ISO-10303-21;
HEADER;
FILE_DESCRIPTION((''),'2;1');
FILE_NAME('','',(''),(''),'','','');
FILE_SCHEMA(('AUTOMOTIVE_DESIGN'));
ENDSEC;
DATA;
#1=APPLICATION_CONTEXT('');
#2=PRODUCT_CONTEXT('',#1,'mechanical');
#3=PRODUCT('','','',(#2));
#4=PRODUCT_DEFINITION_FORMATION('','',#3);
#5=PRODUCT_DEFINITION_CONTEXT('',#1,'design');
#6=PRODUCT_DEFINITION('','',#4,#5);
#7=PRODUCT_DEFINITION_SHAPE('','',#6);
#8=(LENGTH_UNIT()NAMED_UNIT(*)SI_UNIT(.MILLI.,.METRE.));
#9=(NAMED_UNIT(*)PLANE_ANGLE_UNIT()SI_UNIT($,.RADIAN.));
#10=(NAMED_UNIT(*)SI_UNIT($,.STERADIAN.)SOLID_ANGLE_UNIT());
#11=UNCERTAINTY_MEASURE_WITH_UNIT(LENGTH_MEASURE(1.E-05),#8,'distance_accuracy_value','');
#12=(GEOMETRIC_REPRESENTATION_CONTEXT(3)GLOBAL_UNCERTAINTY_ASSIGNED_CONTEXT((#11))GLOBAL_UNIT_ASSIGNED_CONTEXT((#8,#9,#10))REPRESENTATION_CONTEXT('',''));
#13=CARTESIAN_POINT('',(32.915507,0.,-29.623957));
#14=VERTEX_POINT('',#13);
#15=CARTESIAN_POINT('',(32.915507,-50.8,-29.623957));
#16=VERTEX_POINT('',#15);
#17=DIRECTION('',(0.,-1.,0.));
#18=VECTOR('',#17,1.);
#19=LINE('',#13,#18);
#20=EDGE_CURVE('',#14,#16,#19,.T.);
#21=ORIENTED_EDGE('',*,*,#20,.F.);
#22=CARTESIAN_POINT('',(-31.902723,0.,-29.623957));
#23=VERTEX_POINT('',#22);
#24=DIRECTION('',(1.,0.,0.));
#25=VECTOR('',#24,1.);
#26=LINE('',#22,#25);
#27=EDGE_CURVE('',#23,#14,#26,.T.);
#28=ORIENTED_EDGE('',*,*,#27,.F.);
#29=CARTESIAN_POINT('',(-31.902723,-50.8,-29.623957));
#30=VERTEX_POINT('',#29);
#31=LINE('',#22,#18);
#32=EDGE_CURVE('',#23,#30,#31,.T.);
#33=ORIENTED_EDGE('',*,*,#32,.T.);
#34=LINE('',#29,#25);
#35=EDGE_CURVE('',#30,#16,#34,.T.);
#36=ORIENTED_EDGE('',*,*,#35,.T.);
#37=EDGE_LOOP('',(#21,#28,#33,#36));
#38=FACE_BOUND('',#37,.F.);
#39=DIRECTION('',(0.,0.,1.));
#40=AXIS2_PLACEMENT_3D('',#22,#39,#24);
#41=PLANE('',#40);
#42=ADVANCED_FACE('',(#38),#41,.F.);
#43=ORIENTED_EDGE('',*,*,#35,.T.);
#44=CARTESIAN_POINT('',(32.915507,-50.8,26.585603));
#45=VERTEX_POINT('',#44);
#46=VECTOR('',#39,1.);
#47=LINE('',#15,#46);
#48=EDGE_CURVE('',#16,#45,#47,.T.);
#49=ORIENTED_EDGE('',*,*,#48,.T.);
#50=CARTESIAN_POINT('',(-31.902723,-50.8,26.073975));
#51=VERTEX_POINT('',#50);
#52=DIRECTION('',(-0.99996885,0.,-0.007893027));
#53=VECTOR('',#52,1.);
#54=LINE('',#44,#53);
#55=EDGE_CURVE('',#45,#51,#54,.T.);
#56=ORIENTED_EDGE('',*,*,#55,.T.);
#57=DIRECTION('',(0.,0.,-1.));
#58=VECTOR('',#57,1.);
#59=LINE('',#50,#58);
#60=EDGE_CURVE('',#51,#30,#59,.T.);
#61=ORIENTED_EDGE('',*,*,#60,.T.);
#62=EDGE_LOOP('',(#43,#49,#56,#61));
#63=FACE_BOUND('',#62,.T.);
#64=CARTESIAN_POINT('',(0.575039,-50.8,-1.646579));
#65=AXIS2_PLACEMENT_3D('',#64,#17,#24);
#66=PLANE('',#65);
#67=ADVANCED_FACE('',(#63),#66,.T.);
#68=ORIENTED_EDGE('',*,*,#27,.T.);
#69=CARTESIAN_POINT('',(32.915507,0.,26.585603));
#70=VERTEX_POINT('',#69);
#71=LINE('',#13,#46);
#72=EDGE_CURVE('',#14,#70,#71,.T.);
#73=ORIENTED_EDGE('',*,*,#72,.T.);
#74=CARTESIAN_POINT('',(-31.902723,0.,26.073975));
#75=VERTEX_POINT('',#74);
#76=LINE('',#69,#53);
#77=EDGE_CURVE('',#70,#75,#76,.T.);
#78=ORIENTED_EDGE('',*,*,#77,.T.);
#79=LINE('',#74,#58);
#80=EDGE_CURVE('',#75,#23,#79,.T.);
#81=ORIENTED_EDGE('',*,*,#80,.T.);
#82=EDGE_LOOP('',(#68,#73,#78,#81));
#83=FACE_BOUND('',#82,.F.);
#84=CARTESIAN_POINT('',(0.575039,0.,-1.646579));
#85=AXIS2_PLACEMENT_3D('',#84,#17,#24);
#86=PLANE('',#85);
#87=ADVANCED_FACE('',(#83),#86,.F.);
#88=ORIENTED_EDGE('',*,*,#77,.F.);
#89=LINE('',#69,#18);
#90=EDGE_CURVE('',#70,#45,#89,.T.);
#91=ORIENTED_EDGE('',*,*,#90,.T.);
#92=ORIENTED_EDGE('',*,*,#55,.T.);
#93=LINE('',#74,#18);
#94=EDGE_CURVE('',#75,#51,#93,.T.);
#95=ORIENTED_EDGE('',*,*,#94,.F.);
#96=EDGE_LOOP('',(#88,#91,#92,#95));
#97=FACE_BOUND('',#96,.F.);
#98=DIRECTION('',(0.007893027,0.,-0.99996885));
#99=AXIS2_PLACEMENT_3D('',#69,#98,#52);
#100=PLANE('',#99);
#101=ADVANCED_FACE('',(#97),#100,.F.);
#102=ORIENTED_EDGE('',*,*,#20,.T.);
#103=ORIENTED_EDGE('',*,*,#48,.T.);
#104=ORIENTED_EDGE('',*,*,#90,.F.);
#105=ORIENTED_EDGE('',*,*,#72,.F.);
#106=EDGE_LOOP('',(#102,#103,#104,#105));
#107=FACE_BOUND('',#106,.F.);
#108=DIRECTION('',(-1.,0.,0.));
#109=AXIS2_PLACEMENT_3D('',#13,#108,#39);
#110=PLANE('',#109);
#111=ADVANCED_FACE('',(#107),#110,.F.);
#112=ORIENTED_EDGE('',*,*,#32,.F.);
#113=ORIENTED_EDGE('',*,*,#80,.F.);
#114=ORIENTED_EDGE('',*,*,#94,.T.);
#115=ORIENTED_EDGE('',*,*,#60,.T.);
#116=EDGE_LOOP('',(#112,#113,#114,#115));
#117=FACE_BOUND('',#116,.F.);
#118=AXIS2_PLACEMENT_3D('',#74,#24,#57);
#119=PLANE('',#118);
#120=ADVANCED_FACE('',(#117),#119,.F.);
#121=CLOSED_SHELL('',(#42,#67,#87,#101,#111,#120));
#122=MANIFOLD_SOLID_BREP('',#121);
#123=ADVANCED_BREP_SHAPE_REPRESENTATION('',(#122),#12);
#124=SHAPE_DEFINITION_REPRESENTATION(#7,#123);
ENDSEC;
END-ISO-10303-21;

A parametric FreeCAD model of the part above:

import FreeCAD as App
import Part
import Sketcher
Q = App.Units.Quantity


def add_polygon(sketch, points):
    """Adds a closed chain of lines whose ends are joined by coincident constraints."""
    first, n = sketch.GeometryCount, len(points)
    for a, b in zip(points, points[1:] + points[:1]):
        sketch.addGeometry(Part.LineSegment(App.Vector(*a, 0), App.Vector(*b, 0)), False)
    for i in range(n):
        sketch.addConstraint(Sketcher.Constraint("Coincident", first + i, 2, first + (i + 1) % n, 1))

doc = App.newDocument("Part")
body = doc.addObject("PartDesign::Body", "Body")

# Sketch on XZ plane
sketch1 = body.newObject("Sketcher::SketchObject", "Sketch")
sketch1.AttachmentSupport = (doc.getObject("XZ_Plane"), [""])
sketch1.MapMode = "FlatFace"
sketch1.addGeometry(Part.Circle(App.Vector(0, 0, 0), App.Vector(0, 0, 1), 9), False)
sketch1.addConstraint(Sketcher.Constraint("Coincident", 0, 3, -1, 1))
sketch1.addConstraint(Sketcher.Constraint("Diameter", 0, 17.135232))
pad1 = body.newObject("PartDesign::Pad", "Pad")
pad1.Profile = sketch1
pad1.Length = Q("1 in")

# Sketch on XZ plane
sketch2 = body.newObject("Sketcher::SketchObject", "Sketch001")
sketch2.AttachmentSupport = (doc.getObject("XZ_Plane"), [""])
sketch2.MapMode = "FlatFace"
add_polygon(sketch2, [(32.915507, 26.585603), (-31.902723, 26.073975), (-31.902723, -29.623957), (32.915507, -29.623957)])  # lines 0-3
sketch2.addConstraint(Sketcher.Constraint("Vertical", 1))
sketch2.addConstraint(Sketcher.Constraint("Horizontal", 2))
sketch2.addConstraint(Sketcher.Constraint("Vertical", 3))
sketch2.addConstraint(Sketcher.Constraint("DistanceX", 2, 1, 2, 2, 64.81823))
sketch2.addConstraint(Sketcher.Constraint("DistanceY", 3, 1, 3, 2, 56.20956))
sketch2.addConstraint(Sketcher.Constraint("Distance", 0, 64.820249))
sketch2.addConstraint(Sketcher.Constraint("DistanceX", 0, 2, -1, 1, 31.902723))
sketch2.addConstraint(Sketcher.Constraint("DistanceY", -1, 1, 0, 2, 26.073975))
pad2 = body.newObject("PartDesign::Pad", "Pad001")
pad2.Profile = sketch2
pad2.Length = Q("2 in")

doc.recompute()
